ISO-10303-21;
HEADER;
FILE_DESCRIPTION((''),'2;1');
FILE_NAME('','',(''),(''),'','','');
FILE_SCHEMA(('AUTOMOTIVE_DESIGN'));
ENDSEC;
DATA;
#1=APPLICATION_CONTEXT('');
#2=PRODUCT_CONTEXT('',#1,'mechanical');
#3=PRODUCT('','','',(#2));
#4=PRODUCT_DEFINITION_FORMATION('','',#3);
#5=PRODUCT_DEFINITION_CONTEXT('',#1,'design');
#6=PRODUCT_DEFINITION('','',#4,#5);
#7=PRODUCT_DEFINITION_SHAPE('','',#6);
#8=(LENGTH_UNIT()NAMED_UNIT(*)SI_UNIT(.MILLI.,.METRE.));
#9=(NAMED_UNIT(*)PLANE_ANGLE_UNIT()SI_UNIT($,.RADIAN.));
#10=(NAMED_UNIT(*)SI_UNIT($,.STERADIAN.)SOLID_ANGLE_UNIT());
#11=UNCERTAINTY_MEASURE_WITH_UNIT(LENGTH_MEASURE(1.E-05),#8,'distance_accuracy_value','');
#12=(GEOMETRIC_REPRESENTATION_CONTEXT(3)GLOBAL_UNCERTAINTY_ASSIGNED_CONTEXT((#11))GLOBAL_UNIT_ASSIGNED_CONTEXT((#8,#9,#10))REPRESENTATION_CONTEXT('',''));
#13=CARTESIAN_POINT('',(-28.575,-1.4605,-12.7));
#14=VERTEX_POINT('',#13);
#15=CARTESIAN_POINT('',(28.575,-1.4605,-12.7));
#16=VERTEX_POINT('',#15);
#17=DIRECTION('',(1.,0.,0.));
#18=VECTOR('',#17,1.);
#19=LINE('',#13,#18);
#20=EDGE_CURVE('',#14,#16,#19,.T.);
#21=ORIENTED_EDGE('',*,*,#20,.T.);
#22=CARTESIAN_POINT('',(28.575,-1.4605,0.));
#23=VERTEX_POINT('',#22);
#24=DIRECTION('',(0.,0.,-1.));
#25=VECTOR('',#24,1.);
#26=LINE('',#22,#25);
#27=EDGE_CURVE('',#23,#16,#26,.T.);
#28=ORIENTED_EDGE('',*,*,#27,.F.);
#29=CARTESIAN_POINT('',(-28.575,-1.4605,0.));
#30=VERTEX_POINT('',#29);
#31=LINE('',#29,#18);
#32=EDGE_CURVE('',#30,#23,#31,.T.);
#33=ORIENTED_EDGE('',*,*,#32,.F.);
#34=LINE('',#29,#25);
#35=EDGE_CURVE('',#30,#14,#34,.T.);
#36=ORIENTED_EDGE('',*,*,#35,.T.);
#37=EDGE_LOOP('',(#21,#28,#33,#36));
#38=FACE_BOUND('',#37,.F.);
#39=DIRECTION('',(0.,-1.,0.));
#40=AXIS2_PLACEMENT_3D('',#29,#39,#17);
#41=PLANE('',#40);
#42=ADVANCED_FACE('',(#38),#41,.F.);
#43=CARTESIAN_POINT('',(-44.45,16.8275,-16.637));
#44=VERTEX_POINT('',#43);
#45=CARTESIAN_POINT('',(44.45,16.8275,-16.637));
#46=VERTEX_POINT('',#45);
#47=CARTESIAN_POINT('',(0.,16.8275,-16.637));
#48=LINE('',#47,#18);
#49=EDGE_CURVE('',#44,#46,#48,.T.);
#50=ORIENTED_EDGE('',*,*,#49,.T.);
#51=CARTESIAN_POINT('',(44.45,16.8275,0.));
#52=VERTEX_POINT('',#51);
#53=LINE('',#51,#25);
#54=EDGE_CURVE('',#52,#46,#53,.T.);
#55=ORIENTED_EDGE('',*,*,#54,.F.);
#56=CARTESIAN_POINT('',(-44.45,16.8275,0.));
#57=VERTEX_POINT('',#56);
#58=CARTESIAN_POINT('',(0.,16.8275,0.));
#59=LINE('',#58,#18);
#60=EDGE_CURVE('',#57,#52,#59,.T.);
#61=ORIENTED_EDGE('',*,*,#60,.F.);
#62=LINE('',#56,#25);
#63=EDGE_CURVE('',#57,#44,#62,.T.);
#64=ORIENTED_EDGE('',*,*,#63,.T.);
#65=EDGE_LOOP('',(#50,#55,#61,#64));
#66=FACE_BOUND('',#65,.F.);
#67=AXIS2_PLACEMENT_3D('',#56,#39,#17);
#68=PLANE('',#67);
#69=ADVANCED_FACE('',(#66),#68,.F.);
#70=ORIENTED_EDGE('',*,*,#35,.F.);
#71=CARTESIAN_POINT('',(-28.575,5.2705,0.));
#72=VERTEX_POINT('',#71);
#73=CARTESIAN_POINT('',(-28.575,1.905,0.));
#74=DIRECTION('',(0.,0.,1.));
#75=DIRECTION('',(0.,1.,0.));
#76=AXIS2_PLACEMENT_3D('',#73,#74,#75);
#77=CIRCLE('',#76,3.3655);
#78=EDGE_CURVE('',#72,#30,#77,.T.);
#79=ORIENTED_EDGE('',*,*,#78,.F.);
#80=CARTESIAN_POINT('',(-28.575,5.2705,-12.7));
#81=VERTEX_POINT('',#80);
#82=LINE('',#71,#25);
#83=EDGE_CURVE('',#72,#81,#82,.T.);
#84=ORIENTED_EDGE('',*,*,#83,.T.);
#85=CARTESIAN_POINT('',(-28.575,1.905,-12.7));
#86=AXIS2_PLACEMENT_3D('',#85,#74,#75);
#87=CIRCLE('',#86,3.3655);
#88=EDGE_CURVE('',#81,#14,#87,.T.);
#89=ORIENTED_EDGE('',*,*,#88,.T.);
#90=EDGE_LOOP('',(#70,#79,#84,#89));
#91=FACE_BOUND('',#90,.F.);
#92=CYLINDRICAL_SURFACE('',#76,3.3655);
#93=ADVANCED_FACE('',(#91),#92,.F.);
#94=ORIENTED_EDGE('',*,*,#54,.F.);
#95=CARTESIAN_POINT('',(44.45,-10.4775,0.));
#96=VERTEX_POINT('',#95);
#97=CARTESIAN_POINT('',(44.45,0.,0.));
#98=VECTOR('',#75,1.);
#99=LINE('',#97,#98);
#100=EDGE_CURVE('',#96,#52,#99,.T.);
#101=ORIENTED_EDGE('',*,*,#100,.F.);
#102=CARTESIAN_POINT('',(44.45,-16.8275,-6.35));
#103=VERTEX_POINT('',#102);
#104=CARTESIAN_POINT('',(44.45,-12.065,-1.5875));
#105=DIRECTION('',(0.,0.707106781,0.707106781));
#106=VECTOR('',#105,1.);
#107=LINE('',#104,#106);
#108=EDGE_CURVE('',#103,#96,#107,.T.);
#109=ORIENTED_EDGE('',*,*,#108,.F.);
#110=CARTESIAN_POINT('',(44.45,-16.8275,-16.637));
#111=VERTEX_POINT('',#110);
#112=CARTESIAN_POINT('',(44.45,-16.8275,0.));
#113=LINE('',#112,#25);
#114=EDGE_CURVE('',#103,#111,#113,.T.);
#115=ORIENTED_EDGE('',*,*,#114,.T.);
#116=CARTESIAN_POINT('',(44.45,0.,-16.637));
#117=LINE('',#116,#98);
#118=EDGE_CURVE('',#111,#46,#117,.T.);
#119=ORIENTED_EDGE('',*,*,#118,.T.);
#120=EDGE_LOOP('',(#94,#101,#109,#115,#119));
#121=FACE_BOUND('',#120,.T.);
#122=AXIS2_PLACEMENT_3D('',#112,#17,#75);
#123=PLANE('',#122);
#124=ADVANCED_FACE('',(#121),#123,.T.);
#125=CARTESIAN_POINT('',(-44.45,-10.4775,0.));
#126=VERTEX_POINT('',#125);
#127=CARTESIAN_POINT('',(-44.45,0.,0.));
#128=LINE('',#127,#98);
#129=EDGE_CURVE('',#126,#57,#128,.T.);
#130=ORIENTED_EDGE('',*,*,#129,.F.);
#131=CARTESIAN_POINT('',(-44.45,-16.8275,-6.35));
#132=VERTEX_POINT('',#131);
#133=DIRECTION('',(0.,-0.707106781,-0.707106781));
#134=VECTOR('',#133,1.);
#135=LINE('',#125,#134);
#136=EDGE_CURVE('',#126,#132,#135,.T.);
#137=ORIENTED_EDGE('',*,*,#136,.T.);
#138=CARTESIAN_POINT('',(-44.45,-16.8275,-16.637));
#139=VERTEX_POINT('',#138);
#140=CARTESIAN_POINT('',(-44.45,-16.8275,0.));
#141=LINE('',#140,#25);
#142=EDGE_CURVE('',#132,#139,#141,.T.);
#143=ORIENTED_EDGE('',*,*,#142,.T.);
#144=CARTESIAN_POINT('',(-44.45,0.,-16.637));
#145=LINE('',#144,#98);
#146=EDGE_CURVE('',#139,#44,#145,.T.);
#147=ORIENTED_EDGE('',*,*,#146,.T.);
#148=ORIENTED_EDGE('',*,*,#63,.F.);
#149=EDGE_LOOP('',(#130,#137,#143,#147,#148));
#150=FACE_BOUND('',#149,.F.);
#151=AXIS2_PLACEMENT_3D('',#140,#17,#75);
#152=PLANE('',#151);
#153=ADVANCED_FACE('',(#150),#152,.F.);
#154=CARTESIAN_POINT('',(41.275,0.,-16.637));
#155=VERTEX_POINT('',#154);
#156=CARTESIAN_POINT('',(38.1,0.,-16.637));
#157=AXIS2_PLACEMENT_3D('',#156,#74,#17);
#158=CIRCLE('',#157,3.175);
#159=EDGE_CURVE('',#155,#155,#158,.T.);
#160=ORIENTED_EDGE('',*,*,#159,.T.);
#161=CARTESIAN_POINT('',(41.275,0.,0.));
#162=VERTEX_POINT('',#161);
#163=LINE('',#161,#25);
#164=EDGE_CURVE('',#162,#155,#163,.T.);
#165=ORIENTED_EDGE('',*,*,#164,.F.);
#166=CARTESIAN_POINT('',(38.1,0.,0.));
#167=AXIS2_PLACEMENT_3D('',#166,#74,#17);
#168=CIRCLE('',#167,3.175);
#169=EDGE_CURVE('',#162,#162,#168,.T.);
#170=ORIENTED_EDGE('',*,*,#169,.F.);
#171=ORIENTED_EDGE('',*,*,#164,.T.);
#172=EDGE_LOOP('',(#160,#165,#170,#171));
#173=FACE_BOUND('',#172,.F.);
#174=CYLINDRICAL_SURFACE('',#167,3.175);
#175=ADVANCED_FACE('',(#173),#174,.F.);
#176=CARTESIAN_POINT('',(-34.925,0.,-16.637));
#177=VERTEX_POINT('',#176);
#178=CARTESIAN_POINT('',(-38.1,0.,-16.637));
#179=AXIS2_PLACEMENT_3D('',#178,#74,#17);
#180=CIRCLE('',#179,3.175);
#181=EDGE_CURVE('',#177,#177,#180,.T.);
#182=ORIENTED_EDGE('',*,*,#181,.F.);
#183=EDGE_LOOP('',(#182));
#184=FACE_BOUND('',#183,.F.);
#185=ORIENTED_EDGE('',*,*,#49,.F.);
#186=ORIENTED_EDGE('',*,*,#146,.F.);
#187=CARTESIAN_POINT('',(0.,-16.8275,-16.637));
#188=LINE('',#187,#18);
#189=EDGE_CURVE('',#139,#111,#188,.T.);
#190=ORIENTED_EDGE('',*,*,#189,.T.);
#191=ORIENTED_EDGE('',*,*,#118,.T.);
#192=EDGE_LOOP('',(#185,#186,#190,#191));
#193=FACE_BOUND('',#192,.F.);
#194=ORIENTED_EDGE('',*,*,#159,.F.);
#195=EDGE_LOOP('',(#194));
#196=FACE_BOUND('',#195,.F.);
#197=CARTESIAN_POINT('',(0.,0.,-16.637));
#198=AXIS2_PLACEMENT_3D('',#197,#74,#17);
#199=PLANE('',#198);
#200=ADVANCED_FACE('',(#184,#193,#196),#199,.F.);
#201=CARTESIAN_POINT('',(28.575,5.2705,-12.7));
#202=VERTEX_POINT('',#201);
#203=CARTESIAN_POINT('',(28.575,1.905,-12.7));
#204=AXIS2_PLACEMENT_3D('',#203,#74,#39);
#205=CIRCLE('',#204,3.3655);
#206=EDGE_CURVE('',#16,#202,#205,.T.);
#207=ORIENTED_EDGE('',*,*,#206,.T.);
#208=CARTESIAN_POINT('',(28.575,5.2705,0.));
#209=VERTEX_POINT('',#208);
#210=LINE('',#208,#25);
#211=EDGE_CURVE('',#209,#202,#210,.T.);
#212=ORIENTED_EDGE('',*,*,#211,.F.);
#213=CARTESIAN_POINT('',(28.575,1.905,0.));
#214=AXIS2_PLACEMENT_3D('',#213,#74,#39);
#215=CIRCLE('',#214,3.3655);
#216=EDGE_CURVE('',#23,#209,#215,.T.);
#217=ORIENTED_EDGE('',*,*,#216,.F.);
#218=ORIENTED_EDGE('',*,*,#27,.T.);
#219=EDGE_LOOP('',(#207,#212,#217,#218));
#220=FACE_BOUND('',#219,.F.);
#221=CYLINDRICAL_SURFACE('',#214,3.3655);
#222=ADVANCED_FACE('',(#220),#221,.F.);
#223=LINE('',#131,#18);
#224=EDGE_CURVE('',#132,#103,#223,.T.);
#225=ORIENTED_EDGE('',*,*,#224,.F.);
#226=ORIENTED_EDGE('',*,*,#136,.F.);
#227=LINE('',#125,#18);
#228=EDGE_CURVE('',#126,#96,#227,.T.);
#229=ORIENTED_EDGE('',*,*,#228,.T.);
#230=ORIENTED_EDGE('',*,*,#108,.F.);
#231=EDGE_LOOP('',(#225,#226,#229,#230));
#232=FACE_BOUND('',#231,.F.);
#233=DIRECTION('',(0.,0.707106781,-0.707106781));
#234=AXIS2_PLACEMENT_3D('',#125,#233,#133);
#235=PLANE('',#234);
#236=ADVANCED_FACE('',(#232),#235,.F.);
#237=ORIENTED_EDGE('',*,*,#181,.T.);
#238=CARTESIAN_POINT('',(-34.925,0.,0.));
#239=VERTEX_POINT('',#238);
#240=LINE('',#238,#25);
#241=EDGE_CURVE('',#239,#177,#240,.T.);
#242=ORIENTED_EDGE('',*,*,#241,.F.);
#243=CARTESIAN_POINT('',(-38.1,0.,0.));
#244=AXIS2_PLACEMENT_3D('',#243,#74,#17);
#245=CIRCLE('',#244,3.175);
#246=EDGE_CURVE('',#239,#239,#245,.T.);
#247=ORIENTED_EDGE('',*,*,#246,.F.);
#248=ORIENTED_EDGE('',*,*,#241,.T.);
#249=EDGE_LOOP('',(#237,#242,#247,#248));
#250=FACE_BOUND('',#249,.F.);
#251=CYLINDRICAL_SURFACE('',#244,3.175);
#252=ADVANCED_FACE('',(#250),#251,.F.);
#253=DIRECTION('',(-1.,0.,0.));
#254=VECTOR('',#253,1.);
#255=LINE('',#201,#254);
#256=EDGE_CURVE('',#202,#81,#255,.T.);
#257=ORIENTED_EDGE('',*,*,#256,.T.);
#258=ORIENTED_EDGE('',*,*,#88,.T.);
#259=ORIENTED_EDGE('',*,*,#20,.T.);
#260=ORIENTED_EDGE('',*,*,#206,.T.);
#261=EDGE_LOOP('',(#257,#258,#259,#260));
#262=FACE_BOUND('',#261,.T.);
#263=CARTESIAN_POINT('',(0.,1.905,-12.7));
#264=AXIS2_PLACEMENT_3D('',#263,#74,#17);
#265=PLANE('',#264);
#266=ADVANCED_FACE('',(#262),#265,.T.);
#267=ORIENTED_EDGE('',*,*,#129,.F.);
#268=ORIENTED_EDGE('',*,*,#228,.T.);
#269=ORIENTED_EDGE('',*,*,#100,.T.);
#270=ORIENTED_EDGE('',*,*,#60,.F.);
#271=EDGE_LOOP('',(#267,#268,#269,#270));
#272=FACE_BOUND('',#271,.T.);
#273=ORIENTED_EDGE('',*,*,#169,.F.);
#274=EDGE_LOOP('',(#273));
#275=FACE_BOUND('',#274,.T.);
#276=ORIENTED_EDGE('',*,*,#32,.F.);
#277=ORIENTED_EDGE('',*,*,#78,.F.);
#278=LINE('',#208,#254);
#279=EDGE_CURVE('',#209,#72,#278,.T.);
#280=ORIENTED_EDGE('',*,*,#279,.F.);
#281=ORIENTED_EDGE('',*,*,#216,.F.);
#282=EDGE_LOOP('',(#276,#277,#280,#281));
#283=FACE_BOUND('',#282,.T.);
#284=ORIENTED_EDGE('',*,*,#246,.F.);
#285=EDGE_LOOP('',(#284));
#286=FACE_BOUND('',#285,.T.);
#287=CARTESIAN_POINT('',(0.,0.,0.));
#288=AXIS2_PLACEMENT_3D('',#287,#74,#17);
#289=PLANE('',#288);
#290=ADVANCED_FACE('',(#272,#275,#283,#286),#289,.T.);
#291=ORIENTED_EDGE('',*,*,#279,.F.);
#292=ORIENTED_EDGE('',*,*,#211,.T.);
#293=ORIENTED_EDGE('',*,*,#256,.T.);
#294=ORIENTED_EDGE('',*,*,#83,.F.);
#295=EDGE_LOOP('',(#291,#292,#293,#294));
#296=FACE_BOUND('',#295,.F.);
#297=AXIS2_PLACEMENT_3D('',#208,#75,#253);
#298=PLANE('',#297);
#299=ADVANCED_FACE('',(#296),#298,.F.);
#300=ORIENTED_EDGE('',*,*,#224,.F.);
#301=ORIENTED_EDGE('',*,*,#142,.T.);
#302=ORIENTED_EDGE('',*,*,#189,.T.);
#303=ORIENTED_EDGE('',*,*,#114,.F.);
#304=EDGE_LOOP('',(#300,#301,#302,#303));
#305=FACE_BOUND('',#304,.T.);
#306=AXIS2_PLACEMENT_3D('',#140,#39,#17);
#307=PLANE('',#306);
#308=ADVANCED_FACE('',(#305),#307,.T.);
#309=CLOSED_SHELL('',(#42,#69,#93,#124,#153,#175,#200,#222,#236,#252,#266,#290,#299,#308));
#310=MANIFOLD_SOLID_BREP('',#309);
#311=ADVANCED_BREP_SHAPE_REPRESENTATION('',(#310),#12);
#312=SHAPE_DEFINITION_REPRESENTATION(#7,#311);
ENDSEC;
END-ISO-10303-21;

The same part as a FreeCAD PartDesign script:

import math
import FreeCAD as App
import Part
import Sketcher
Q = App.Units.Quantity

doc = App.newDocument("Part")
body = doc.addObject("PartDesign::Body", "Body")

sketch1 = body.newObject("Sketcher::SketchObject", "Sketch")
sketch1.AttachmentSupport = (doc.getObject("XY_Plane"), [""])
sketch1.MapMode = "FlatFace"
sketch1.addGeometry([
    Part.LineSegment(App.Vector(-44.45, 16.8275, 0), App.Vector(-44.45, -16.8275, 0)),
    Part.LineSegment(App.Vector(-44.45, -16.8275, 0), App.Vector(44.45, -16.8275, 0)),
    Part.LineSegment(App.Vector(44.45, -16.8275, 0), App.Vector(44.45, 16.8275, 0)),
    Part.LineSegment(App.Vector(44.45, 16.8275, 0), App.Vector(-44.45, 16.8275, 0)),
    Part.Circle(App.Vector(-38.1, 0, 0), App.Vector(0, 0, 1), 3.175),
    Part.Circle(App.Vector(38.1, 0, 0), App.Vector(0, 0, 1), 3.175),
], False)
sketch1.addConstraint([
    Sketcher.Constraint("Coincident", 0, 2, 1, 1),
    Sketcher.Constraint("Coincident", 1, 2, 2, 1),
    Sketcher.Constraint("Coincident", 2, 2, 3, 1),
    Sketcher.Constraint("Coincident", 3, 2, 0, 1),
    Sketcher.Constraint("Vertical", 0),
    Sketcher.Constraint("Horizontal", 1),
    Sketcher.Constraint("Vertical", 2),
    Sketcher.Constraint("Horizontal", 3),
    Sketcher.Constraint("Equal", 4, 5),
    Sketcher.Constraint("Symmetric", 4, 3, 5, 3, -1, 1),
    Sketcher.Constraint("Symmetric", 0, 2, 2, 2, -1, 1),
    Sketcher.Constraint("PointOnObject", 4, 3, -1),
    Sketcher.Constraint("Diameter", 4, Q("0.25 in")),
    Sketcher.Constraint("DistanceX", 1, 1, 1, 2, Q("3.5 in")),
    Sketcher.Constraint("DistanceX", 4, 3, 5, 3, Q("3 in")),
    Sketcher.Constraint("DistanceY", 0, 2, 0, 1, Q("1.325 in")),
])
pad1 = body.newObject("PartDesign::Pad", "Pad")
pad1.Profile = sketch1
pad1.Length = Q("0.655 in")
pad1.Reversed = True

sketch2 = body.newObject("Sketcher::SketchObject", "Sketch001")
sketch2.AttachmentSupport = (doc.getObject("XY_Plane"), [""])
sketch2.MapMode = "FlatFace"
sketch2.addGeometry([
    Part.LineSegment(App.Vector(28.575, 5.2705, 0), App.Vector(-28.575, 5.2705, 0)),
    Part.ArcOfCircle(Part.Circle(App.Vector(-28.575, 1.905, 0), App.Vector(0, 0, 1), 3.3655), math.radians(90), math.radians(270)),
    Part.LineSegment(App.Vector(-28.575, -1.4605, 0), App.Vector(28.575, -1.4605, 0)),
    Part.ArcOfCircle(Part.Circle(App.Vector(28.575, 1.905, 0), App.Vector(0, 0, 1), 3.3655), math.radians(-90), math.radians(90)),
], False)
sketch2.addConstraint([
    Sketcher.Constraint("Tangent", 0, 2, 1, 1),
    Sketcher.Constraint("Tangent", 1, 2, 2, 1),
    Sketcher.Constraint("Tangent", 2, 2, 3, 1),
    Sketcher.Constraint("Tangent", 3, 2, 0, 1),
    Sketcher.Constraint("Horizontal", 0),
    Sketcher.Constraint("Horizontal", 2),
    Sketcher.Constraint("DistanceX", 0, 2, 0, 1, Q("2.25 in")),
    Sketcher.Constraint("Radius", 1, Q("0.1325 in")),
    Sketcher.Constraint("DistanceX", 1, 3, -1, 1, Q("1.125 in")),
    Sketcher.Constraint("DistanceY", -1, 1, 1, 3, Q("0.075 in")),
])
pocket1 = body.newObject("PartDesign::Pocket", "Pocket")
pocket1.Profile = sketch2
pocket1.Length = Q("0.5 in")

sketch3 = body.newObject("Sketcher::SketchObject", "Sketch002")
sketch3.AttachmentSupport = (doc.getObject("YZ_Plane"), [""])
sketch3.MapMode = "FlatFace"
sketch3.AttachmentOffset = App.Placement(App.Vector(0, 0, -1.75 * 25.4), App.Rotation())
sketch3.addGeometry([
    Part.LineSegment(App.Vector(-16.8275, 0, 0), App.Vector(-10.4775, 0, 0)),
    Part.LineSegment(App.Vector(-10.4775, 0, 0), App.Vector(-16.8275, -6.35, 0)),
    Part.LineSegment(App.Vector(-16.8275, -6.35, 0), App.Vector(-16.8275, 0, 0)),
], False)
sketch3.addConstraint([
    Sketcher.Constraint("Coincident", 0, 2, 1, 1),
    Sketcher.Constraint("Coincident", 1, 2, 2, 1),
    Sketcher.Constraint("Coincident", 2, 2, 0, 1),
    Sketcher.Constraint("Horizontal", 0),
    Sketcher.Constraint("Vertical", 2),
    Sketcher.Constraint("PointOnObject", 0, 2, -1),
    Sketcher.Constraint("Equal", 0, 2),
    Sketcher.Constraint("DistanceX", 0, 1, 0, 2, Q("0.25 in")),
    Sketcher.Constraint("DistanceX", 0, 2, -1, 1, Q("0.4125 in")),
])
pocket2 = body.newObject("PartDesign::Pocket", "Pocket001")
pocket2.Profile = sketch3
pocket2.Type = "ThroughAll"
pocket2.Reversed = True

doc.recompute()
